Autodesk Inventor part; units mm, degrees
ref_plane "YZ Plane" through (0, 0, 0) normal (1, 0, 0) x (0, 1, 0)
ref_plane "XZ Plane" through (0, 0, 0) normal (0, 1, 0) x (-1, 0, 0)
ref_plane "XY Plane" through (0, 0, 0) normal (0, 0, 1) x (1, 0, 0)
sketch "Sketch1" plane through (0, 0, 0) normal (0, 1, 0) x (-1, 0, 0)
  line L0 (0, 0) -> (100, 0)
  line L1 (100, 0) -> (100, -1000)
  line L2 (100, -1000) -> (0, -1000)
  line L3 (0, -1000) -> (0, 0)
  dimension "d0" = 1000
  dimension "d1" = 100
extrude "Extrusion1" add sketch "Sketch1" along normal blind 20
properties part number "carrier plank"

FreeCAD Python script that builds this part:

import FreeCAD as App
import Part
import Sketcher

V = App.Vector


def add_polygon(sketch, points):
    """Adds a closed chain of lines whose ends are joined by coincident constraints."""
    first, n = sketch.GeometryCount, len(points)
    for a, b in zip(points, points[1:] + points[:1]):
        sketch.addGeometry(Part.LineSegment(App.Vector(*a, 0), App.Vector(*b, 0)), False)
    for i in range(n):
        sketch.addConstraint(Sketcher.Constraint("Coincident", first + i, 2, first + (i + 1) % n, 1))

doc = App.newDocument("Part")
body = doc.addObject("PartDesign::Body", "Body")

sketch1 = body.newObject("Sketcher::SketchObject", "Sketch")
sketch1.AttachmentSupport = (doc.getObject("XZ_Plane"), [""])
sketch1.MapMode = "FlatFace"
add_polygon(sketch1, [(-100, 0), (0, 0), (0, -1000), (-100, -1000)])
sketch1.addConstraint([
    Sketcher.Constraint("Horizontal", 0),
    Sketcher.Constraint("Vertical", 1),
    Sketcher.Constraint("Horizontal", 2),
    Sketcher.Constraint("Vertical", 3),
    Sketcher.Constraint("Coincident", 0, 2, -1, 1),
    Sketcher.Constraint("DistanceX", 0, 1, 0, 2, 100.0),
    Sketcher.Constraint("DistanceY", 1, 2, 1, 1, 1000.0),
])
pad1 = body.newObject("PartDesign::Pad", "Pad")
pad1.Profile = sketch1
pad1.Length = 20
pad1.Reversed = True

doc.recompute()
